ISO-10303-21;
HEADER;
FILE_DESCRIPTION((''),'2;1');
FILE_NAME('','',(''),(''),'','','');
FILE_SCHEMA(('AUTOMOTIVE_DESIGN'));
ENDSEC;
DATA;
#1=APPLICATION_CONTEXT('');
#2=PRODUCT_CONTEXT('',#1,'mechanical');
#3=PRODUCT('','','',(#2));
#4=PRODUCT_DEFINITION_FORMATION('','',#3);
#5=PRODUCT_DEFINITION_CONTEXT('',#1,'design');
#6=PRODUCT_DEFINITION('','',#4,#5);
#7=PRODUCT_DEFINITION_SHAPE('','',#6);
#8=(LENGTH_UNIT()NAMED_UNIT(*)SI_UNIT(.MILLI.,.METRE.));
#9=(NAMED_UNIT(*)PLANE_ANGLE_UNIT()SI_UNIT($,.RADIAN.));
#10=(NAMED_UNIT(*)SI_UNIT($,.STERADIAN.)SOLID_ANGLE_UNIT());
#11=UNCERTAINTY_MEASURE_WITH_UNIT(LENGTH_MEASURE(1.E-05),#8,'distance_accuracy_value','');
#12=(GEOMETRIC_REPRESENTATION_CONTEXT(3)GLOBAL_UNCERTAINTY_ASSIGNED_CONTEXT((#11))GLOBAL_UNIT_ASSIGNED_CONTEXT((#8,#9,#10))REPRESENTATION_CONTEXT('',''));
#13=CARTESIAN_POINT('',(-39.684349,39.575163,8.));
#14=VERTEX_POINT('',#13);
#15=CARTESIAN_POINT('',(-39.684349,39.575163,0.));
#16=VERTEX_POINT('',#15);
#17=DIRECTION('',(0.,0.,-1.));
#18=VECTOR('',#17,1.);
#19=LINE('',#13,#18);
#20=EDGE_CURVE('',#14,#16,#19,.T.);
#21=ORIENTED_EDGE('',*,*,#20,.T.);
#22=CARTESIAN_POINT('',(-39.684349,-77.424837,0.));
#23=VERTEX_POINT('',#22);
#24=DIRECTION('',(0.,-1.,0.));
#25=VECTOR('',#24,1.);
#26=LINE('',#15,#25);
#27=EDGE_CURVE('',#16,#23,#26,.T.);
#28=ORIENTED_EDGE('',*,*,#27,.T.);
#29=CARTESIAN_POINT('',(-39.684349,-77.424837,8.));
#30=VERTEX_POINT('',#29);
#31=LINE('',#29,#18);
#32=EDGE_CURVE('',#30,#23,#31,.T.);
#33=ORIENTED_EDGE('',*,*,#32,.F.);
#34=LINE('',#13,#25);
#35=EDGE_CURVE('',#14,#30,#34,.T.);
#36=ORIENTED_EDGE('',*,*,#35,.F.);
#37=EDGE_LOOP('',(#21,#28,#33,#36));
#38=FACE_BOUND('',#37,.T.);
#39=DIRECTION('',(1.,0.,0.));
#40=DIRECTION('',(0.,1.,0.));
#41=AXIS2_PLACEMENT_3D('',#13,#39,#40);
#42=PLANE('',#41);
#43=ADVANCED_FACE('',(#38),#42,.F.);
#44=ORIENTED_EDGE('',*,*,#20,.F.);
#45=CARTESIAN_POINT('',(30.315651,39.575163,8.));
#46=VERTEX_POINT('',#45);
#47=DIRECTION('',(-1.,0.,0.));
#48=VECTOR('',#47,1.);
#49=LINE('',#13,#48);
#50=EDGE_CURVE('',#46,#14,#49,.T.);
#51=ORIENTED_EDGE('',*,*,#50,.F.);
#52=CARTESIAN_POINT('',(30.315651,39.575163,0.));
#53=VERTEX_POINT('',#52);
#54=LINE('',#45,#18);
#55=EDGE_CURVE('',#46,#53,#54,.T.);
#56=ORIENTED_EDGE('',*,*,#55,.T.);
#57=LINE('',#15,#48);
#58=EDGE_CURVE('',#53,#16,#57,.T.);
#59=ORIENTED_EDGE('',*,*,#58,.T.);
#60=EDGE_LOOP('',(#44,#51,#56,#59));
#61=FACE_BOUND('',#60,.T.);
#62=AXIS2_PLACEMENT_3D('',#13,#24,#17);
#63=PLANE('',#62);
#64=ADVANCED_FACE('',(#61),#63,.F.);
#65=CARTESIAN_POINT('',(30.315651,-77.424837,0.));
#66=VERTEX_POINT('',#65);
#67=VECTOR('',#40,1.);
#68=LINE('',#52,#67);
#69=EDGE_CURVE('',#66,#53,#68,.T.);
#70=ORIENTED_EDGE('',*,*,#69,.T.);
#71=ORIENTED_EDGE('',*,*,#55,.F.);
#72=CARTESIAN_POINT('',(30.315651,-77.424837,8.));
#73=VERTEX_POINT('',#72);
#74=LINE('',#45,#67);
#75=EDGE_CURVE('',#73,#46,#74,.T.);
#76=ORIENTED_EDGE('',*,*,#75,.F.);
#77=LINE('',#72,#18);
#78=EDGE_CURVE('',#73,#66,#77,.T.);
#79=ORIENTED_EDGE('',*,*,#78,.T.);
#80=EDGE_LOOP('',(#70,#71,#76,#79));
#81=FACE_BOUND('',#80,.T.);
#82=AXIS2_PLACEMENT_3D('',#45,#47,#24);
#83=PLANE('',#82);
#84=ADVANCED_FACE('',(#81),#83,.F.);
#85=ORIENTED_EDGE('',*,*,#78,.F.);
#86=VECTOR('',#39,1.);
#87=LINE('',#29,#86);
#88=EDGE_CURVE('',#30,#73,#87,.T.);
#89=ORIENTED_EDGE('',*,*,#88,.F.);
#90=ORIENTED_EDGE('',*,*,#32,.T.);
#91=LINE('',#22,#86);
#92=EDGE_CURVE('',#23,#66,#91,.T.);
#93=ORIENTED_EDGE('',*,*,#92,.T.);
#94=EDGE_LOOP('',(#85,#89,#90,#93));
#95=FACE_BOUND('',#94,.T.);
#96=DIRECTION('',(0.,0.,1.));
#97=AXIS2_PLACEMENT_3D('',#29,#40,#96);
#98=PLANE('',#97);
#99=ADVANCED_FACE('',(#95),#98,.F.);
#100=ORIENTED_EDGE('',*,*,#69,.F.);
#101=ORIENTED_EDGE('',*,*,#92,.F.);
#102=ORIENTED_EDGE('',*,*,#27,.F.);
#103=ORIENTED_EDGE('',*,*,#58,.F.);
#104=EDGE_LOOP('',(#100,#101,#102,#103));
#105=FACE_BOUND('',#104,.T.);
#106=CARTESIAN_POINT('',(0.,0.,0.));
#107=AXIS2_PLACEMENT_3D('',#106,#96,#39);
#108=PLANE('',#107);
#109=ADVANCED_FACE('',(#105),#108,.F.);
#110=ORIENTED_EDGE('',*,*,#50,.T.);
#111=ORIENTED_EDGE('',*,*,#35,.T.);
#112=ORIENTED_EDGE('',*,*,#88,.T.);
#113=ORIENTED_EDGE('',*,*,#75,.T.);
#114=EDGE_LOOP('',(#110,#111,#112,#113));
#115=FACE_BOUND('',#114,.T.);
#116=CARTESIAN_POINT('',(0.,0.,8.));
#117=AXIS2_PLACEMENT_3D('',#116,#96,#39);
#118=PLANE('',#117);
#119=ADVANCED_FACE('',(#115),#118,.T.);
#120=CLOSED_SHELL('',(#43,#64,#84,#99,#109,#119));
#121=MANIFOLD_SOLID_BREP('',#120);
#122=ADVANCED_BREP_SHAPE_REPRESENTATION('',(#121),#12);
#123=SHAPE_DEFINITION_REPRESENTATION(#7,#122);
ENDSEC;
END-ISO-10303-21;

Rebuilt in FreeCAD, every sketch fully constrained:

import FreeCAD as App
import Part
import Sketcher
from FreeCAD import Vector
Q = App.Units.Quantity


def add_polygon(sketch, points):
    """Adds a closed chain of lines whose ends are joined by coincident constraints."""
    first, n = sketch.GeometryCount, len(points)
    for a, b in zip(points, points[1:] + points[:1]):
        sketch.addGeometry(Part.LineSegment(App.Vector(*a, 0), App.Vector(*b, 0)), False)
    for i in range(n):
        sketch.addConstraint(Sketcher.Constraint("Coincident", first + i, 2, first + (i + 1) % n, 1))

doc = App.newDocument("Part")
params = doc.addObject("Spreadsheet::Sheet", "Params")
for row, (alias, value) in enumerate([
    ("sketch1_width", "70 mm"),
    ("sketch1_height", "117 mm"),
    ("pad1_length", "8 mm"),
], start=1):
    params.set(f"A{row}", alias)
    params.set(f"B{row}", "=" + value)
    params.setAlias(f"B{row}", alias)

body = doc.addObject("PartDesign::Body", "Body")

sketch1 = body.newObject("Sketcher::SketchObject", "Sketch")
sketch1.AttachmentSupport = (doc.getObject("XY_Plane"), [""])
sketch1.MapMode = "FlatFace"
add_polygon(sketch1, [(-39.684349, 39.575163), (-39.684349, -77.424837), (30.315651, -77.424837), (30.315651, 39.575163)])
sketch1.addConstraint([
    Sketcher.Constraint("Vertical", 0),
    Sketcher.Constraint("Horizontal", 1),
    Sketcher.Constraint("Vertical", 2),
    Sketcher.Constraint("Horizontal", 3),
    Sketcher.Constraint("DistanceX", 1, 1, 1, 2, Q("70 mm")),
    Sketcher.Constraint("DistanceY", 0, 2, 0, 1, Q("117 mm")),
    Sketcher.Constraint("DistanceX", 0, 2, -1, 1, Q("39.684349 mm")),
    Sketcher.Constraint("DistanceY", 0, 2, -1, 1, Q("77.424837 mm")),
])
sketch1.setExpression("Constraints[8]", "Params.sketch1_width")
sketch1.setExpression("Constraints[9]", "Params.sketch1_height")
pad1 = body.newObject("PartDesign::Pad", "Pad")
pad1.Profile = sketch1
pad1.setExpression("Length", "Params.pad1_length")

doc.recompute()
